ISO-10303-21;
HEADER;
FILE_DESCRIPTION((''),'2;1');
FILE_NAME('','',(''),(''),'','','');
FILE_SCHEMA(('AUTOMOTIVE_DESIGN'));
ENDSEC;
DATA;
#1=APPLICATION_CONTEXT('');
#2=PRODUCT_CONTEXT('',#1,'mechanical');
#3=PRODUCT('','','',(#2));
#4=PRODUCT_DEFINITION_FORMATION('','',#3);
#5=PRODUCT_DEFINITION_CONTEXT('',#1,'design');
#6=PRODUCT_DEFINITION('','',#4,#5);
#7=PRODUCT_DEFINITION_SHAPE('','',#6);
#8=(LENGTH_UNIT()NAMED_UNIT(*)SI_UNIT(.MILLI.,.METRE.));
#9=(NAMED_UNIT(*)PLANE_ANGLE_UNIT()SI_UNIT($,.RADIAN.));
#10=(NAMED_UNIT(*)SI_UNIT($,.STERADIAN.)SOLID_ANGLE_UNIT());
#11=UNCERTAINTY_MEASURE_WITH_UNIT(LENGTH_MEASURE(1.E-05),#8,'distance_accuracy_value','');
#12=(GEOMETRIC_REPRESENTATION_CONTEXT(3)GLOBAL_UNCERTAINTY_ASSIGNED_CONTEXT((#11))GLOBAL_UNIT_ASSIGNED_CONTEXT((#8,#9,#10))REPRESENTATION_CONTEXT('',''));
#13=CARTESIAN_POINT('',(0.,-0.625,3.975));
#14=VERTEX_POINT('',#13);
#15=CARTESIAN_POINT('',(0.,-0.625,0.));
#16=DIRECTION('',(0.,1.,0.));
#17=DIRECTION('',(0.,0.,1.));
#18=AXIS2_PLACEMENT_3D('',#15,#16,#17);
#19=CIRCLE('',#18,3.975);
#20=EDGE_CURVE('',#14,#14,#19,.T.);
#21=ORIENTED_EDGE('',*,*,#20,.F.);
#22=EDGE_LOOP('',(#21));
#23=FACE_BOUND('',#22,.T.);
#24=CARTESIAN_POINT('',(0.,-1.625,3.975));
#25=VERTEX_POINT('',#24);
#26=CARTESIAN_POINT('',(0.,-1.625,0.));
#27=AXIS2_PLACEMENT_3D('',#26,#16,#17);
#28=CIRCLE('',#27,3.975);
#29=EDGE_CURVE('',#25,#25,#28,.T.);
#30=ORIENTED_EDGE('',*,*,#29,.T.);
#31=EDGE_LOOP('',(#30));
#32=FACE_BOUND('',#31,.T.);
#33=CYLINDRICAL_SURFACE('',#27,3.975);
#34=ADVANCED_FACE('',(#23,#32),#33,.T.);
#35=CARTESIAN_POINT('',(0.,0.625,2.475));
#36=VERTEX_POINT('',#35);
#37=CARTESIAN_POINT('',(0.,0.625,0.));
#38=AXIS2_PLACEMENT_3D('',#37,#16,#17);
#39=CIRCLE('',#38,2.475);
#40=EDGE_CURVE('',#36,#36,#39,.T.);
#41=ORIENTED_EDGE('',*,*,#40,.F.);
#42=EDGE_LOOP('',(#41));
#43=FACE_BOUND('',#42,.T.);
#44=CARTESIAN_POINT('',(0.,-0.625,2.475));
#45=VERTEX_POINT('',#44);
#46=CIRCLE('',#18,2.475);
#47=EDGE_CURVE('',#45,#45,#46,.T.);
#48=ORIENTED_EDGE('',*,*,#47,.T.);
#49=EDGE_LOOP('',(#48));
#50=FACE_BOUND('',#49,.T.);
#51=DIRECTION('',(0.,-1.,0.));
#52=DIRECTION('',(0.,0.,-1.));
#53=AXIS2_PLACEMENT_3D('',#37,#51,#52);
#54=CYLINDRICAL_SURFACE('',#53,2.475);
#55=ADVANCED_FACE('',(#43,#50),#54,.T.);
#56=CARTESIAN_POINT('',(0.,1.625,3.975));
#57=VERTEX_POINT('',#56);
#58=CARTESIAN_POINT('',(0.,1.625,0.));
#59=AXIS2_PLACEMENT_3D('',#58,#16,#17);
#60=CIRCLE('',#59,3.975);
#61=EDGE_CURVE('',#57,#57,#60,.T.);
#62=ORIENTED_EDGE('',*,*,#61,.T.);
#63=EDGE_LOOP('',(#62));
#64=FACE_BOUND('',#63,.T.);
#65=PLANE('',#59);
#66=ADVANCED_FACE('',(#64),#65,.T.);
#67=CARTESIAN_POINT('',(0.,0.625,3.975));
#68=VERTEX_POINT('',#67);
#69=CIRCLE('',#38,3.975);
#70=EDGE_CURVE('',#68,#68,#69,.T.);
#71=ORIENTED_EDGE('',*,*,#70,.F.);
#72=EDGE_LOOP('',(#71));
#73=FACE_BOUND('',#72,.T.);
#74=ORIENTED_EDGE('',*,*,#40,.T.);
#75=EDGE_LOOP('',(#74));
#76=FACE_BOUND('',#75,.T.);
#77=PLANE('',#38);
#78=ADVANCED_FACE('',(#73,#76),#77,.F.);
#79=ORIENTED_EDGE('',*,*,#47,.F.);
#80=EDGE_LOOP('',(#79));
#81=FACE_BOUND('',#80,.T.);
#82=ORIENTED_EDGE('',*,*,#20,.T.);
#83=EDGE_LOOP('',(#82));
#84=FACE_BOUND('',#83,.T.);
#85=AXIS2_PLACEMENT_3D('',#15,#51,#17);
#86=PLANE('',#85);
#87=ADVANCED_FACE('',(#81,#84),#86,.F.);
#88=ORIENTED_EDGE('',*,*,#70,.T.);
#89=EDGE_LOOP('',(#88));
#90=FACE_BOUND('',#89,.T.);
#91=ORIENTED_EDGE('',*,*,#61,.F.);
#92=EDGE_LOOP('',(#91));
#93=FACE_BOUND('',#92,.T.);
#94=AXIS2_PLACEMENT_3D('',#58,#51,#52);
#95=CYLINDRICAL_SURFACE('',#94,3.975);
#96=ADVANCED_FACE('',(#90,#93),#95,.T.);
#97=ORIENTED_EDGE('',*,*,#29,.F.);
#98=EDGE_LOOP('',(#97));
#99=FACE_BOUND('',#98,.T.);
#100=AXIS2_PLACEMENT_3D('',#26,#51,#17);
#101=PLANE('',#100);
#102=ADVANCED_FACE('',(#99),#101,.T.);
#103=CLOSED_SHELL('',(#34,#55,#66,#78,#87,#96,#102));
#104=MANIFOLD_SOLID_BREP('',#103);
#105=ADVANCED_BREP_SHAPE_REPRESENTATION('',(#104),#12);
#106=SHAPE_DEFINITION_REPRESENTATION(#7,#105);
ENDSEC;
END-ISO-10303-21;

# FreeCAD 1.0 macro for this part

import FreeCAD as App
import Part
import Sketcher

doc = App.newDocument("Part")
params = doc.addObject("Spreadsheet::Sheet", "Params")
for row, (alias, value) in enumerate([
    ("sketch1_diameter", "4.95 mm"),
    ("pad1_length", "1.25 mm"),
    ("sketch2_diameter", "7.95 mm"),
    ("pad2_length", "1 mm"),
], start=1):
    params.set(f"A{row}", alias)
    params.set(f"B{row}", "=" + value)
    params.setAlias(f"B{row}", alias)

body = doc.addObject("PartDesign::Body", "Body")

# Sketch on XZ plane
sketch1 = doc.addObject("Sketcher::SketchObject", "Sketch")
body.addObject(sketch1)
sketch1.AttachmentSupport = (doc.XZ_Plane, [""])
sketch1.MapMode = "FlatFace"
sketch1.addGeometry(Part.Circle(App.Vector(0, 0, 0), App.Vector(0, 0, 1), 2.475), False)
sketch1.addConstraint(Sketcher.Constraint("Coincident", 0, 3, -1, 1))
sketch1.addConstraint(Sketcher.Constraint("Diameter", 0, 4.95))
sketch1.setExpression("Constraints[1]", "Params.sketch1_diameter")
pad1 = doc.addObject("PartDesign::Pad", "Pad")
body.addObject(pad1)
pad1.Profile = sketch1
pad1.setExpression("Length", "Params.pad1_length")
pad1.Midplane = True

# Sketch on XZ plane
sketch2 = doc.addObject("Sketcher::SketchObject", "Sketch001")
body.addObject(sketch2)
sketch2.AttachmentSupport = (doc.XZ_Plane, [""])
sketch2.MapMode = "FlatFace"
sketch2.AttachmentOffset = App.Placement(App.Vector(0, 0, -0.625), App.Rotation())
sketch2.addGeometry(Part.Circle(App.Vector(0, 0, 0), App.Vector(0, 0, 1), 3.975), False)
sketch2.addConstraint(Sketcher.Constraint("Coincident", 0, 3, -1, 1))
sketch2.addConstraint(Sketcher.Constraint("Diameter", 0, 7.95))
sketch2.setExpression("Constraints[1]", "Params.sketch2_diameter")
pad2 = doc.addObject("PartDesign::Pad", "Pad001")
body.addObject(pad2)
pad2.Profile = sketch2
pad2.setExpression("Length", "Params.pad2_length")
pad2.Reversed = True
doc.recompute()

mirrored = doc.addObject("PartDesign::Mirrored", "Mirrored")
body.addObject(mirrored)
mirrored.Originals = [pad2]
mirrored.MirrorPlane = (doc.XZ_Plane, [""])
body.Tip = mirrored

doc.recompute()
